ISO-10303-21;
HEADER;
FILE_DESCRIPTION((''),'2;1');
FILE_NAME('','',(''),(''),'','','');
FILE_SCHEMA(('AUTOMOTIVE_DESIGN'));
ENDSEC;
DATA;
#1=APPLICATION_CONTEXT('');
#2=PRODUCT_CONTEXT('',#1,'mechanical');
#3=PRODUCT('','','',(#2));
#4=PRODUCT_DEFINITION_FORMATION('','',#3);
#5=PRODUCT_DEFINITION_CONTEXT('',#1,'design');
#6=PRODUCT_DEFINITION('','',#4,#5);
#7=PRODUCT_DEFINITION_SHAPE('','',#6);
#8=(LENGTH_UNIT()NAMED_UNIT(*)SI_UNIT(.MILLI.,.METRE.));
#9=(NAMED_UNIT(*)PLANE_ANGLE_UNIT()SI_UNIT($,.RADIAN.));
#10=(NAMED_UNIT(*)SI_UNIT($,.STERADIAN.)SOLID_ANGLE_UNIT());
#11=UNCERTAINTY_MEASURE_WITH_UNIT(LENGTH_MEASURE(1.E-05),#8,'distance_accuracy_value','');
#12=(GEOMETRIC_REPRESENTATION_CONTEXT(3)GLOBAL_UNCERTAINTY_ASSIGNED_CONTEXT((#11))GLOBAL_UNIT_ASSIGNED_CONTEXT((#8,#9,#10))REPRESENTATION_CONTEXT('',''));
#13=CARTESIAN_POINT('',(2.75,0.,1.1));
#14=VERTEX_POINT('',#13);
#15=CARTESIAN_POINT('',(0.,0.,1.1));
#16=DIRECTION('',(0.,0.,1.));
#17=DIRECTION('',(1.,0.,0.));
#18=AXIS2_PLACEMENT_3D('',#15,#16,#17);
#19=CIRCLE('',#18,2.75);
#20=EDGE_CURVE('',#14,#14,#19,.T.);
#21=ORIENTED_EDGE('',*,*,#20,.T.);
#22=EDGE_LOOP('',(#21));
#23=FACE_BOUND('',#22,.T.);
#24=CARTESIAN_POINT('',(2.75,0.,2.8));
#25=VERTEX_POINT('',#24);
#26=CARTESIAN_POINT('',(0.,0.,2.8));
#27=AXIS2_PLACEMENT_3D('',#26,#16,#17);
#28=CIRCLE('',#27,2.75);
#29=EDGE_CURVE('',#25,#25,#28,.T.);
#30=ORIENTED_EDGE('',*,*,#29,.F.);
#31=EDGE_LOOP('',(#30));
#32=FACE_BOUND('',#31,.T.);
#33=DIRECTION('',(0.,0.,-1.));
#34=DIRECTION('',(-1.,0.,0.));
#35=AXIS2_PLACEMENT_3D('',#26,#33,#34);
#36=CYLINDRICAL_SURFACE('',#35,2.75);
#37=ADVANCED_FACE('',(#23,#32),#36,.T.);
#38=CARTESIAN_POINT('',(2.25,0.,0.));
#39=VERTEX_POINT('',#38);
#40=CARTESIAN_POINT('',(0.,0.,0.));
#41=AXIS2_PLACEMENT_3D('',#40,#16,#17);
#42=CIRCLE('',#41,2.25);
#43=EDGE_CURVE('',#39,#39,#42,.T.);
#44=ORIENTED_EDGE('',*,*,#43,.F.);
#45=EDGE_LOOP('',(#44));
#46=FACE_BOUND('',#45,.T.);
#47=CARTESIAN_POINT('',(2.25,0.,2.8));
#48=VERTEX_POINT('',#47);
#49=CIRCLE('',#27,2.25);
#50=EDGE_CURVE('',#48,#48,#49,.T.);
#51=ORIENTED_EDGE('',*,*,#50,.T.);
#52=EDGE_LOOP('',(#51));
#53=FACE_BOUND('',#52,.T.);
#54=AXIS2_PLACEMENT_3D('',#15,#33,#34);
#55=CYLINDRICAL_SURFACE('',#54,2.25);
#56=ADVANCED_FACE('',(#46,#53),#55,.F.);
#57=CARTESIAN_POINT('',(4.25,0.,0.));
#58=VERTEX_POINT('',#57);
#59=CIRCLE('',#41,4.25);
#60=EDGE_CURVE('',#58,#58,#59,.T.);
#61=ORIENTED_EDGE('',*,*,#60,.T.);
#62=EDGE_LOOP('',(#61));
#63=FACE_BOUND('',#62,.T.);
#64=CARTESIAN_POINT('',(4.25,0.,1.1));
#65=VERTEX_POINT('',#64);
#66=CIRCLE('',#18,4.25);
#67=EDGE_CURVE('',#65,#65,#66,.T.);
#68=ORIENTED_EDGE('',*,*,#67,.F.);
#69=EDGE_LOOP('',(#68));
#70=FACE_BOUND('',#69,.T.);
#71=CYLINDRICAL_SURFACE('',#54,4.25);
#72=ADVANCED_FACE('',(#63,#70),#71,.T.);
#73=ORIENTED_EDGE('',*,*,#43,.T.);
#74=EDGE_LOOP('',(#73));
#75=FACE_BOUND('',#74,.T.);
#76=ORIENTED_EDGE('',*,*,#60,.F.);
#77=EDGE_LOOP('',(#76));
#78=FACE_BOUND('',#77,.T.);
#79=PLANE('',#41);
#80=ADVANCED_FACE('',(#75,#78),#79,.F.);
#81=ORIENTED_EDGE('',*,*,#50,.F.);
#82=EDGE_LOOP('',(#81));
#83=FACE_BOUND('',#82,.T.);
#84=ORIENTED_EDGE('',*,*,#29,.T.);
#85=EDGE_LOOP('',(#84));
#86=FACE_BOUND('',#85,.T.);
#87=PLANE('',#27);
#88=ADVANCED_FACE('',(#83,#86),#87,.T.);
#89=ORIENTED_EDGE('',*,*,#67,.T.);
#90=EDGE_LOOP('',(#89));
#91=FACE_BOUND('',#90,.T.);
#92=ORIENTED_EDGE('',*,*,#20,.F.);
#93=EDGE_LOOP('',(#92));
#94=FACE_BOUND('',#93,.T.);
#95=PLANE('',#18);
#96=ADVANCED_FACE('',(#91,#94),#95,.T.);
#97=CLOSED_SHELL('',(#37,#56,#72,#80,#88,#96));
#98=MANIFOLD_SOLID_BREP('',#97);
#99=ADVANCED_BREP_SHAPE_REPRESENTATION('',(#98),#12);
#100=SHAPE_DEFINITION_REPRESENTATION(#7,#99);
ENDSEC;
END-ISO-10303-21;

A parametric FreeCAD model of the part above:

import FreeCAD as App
import Part
import Sketcher
Q = App.Units.Quantity

doc = App.newDocument("Part")
body = doc.addObject("PartDesign::Body", "Body")

sketch1 = body.newObject("Sketcher::SketchObject", "Sketch")
sketch1.AttachmentSupport = (doc.getObject("XY_Plane"), [""])
sketch1.MapMode = "FlatFace"
sketch1.addGeometry(Part.Circle(App.Vector(0, 0, 0), App.Vector(0, 0, 1), 4.2), False)
sketch1.addGeometry(Part.Circle(App.Vector(0, 0, 0), App.Vector(0, 0, 1), 2.2), False)
sketch1.addConstraint(Sketcher.Constraint("Coincident", 0, 3, -1, 1))
sketch1.addConstraint(Sketcher.Constraint("Coincident", 1, 3, -1, 1))
sketch1.addConstraint(Sketcher.Constraint("Diameter", 0, Q("8.5 mm")))
sketch1.addConstraint(Sketcher.Constraint("Diameter", 1, Q("4.5 mm")))
pad1 = body.newObject("PartDesign::Pad", "Pad")
pad1.Profile = sketch1
pad1.Length = 1.1

sketch2 = body.newObject("Sketcher::SketchObject", "Sketch001")
sketch2.AttachmentSupport = (doc.getObject("XY_Plane"), [""])
sketch2.MapMode = "FlatFace"
sketch2.AttachmentOffset = App.Placement(App.Vector(0, 0, 1.1), App.Rotation())
sketch2.addGeometry(Part.Circle(App.Vector(0, 0, 0), App.Vector(0, 0, 1), 2.8), False)
sketch2.addGeometry(Part.Circle(App.Vector(0, 0, 0), App.Vector(0, 0, 1), 2.2), False)
sketch2.addConstraint(Sketcher.Constraint("Coincident", 0, 3, -1, 1))
sketch2.addConstraint(Sketcher.Constraint("Coincident", 1, 3, -1, 1))
sketch2.addConstraint(Sketcher.Constraint("Diameter", 0, Q("5.5 mm")))
sketch2.addConstraint(Sketcher.Constraint("Diameter", 1, Q("4.5 mm")))
pad2 = body.newObject("PartDesign::Pad", "Pad001")
pad2.Profile = sketch2
pad2.Length = 1.7

doc.recompute()
